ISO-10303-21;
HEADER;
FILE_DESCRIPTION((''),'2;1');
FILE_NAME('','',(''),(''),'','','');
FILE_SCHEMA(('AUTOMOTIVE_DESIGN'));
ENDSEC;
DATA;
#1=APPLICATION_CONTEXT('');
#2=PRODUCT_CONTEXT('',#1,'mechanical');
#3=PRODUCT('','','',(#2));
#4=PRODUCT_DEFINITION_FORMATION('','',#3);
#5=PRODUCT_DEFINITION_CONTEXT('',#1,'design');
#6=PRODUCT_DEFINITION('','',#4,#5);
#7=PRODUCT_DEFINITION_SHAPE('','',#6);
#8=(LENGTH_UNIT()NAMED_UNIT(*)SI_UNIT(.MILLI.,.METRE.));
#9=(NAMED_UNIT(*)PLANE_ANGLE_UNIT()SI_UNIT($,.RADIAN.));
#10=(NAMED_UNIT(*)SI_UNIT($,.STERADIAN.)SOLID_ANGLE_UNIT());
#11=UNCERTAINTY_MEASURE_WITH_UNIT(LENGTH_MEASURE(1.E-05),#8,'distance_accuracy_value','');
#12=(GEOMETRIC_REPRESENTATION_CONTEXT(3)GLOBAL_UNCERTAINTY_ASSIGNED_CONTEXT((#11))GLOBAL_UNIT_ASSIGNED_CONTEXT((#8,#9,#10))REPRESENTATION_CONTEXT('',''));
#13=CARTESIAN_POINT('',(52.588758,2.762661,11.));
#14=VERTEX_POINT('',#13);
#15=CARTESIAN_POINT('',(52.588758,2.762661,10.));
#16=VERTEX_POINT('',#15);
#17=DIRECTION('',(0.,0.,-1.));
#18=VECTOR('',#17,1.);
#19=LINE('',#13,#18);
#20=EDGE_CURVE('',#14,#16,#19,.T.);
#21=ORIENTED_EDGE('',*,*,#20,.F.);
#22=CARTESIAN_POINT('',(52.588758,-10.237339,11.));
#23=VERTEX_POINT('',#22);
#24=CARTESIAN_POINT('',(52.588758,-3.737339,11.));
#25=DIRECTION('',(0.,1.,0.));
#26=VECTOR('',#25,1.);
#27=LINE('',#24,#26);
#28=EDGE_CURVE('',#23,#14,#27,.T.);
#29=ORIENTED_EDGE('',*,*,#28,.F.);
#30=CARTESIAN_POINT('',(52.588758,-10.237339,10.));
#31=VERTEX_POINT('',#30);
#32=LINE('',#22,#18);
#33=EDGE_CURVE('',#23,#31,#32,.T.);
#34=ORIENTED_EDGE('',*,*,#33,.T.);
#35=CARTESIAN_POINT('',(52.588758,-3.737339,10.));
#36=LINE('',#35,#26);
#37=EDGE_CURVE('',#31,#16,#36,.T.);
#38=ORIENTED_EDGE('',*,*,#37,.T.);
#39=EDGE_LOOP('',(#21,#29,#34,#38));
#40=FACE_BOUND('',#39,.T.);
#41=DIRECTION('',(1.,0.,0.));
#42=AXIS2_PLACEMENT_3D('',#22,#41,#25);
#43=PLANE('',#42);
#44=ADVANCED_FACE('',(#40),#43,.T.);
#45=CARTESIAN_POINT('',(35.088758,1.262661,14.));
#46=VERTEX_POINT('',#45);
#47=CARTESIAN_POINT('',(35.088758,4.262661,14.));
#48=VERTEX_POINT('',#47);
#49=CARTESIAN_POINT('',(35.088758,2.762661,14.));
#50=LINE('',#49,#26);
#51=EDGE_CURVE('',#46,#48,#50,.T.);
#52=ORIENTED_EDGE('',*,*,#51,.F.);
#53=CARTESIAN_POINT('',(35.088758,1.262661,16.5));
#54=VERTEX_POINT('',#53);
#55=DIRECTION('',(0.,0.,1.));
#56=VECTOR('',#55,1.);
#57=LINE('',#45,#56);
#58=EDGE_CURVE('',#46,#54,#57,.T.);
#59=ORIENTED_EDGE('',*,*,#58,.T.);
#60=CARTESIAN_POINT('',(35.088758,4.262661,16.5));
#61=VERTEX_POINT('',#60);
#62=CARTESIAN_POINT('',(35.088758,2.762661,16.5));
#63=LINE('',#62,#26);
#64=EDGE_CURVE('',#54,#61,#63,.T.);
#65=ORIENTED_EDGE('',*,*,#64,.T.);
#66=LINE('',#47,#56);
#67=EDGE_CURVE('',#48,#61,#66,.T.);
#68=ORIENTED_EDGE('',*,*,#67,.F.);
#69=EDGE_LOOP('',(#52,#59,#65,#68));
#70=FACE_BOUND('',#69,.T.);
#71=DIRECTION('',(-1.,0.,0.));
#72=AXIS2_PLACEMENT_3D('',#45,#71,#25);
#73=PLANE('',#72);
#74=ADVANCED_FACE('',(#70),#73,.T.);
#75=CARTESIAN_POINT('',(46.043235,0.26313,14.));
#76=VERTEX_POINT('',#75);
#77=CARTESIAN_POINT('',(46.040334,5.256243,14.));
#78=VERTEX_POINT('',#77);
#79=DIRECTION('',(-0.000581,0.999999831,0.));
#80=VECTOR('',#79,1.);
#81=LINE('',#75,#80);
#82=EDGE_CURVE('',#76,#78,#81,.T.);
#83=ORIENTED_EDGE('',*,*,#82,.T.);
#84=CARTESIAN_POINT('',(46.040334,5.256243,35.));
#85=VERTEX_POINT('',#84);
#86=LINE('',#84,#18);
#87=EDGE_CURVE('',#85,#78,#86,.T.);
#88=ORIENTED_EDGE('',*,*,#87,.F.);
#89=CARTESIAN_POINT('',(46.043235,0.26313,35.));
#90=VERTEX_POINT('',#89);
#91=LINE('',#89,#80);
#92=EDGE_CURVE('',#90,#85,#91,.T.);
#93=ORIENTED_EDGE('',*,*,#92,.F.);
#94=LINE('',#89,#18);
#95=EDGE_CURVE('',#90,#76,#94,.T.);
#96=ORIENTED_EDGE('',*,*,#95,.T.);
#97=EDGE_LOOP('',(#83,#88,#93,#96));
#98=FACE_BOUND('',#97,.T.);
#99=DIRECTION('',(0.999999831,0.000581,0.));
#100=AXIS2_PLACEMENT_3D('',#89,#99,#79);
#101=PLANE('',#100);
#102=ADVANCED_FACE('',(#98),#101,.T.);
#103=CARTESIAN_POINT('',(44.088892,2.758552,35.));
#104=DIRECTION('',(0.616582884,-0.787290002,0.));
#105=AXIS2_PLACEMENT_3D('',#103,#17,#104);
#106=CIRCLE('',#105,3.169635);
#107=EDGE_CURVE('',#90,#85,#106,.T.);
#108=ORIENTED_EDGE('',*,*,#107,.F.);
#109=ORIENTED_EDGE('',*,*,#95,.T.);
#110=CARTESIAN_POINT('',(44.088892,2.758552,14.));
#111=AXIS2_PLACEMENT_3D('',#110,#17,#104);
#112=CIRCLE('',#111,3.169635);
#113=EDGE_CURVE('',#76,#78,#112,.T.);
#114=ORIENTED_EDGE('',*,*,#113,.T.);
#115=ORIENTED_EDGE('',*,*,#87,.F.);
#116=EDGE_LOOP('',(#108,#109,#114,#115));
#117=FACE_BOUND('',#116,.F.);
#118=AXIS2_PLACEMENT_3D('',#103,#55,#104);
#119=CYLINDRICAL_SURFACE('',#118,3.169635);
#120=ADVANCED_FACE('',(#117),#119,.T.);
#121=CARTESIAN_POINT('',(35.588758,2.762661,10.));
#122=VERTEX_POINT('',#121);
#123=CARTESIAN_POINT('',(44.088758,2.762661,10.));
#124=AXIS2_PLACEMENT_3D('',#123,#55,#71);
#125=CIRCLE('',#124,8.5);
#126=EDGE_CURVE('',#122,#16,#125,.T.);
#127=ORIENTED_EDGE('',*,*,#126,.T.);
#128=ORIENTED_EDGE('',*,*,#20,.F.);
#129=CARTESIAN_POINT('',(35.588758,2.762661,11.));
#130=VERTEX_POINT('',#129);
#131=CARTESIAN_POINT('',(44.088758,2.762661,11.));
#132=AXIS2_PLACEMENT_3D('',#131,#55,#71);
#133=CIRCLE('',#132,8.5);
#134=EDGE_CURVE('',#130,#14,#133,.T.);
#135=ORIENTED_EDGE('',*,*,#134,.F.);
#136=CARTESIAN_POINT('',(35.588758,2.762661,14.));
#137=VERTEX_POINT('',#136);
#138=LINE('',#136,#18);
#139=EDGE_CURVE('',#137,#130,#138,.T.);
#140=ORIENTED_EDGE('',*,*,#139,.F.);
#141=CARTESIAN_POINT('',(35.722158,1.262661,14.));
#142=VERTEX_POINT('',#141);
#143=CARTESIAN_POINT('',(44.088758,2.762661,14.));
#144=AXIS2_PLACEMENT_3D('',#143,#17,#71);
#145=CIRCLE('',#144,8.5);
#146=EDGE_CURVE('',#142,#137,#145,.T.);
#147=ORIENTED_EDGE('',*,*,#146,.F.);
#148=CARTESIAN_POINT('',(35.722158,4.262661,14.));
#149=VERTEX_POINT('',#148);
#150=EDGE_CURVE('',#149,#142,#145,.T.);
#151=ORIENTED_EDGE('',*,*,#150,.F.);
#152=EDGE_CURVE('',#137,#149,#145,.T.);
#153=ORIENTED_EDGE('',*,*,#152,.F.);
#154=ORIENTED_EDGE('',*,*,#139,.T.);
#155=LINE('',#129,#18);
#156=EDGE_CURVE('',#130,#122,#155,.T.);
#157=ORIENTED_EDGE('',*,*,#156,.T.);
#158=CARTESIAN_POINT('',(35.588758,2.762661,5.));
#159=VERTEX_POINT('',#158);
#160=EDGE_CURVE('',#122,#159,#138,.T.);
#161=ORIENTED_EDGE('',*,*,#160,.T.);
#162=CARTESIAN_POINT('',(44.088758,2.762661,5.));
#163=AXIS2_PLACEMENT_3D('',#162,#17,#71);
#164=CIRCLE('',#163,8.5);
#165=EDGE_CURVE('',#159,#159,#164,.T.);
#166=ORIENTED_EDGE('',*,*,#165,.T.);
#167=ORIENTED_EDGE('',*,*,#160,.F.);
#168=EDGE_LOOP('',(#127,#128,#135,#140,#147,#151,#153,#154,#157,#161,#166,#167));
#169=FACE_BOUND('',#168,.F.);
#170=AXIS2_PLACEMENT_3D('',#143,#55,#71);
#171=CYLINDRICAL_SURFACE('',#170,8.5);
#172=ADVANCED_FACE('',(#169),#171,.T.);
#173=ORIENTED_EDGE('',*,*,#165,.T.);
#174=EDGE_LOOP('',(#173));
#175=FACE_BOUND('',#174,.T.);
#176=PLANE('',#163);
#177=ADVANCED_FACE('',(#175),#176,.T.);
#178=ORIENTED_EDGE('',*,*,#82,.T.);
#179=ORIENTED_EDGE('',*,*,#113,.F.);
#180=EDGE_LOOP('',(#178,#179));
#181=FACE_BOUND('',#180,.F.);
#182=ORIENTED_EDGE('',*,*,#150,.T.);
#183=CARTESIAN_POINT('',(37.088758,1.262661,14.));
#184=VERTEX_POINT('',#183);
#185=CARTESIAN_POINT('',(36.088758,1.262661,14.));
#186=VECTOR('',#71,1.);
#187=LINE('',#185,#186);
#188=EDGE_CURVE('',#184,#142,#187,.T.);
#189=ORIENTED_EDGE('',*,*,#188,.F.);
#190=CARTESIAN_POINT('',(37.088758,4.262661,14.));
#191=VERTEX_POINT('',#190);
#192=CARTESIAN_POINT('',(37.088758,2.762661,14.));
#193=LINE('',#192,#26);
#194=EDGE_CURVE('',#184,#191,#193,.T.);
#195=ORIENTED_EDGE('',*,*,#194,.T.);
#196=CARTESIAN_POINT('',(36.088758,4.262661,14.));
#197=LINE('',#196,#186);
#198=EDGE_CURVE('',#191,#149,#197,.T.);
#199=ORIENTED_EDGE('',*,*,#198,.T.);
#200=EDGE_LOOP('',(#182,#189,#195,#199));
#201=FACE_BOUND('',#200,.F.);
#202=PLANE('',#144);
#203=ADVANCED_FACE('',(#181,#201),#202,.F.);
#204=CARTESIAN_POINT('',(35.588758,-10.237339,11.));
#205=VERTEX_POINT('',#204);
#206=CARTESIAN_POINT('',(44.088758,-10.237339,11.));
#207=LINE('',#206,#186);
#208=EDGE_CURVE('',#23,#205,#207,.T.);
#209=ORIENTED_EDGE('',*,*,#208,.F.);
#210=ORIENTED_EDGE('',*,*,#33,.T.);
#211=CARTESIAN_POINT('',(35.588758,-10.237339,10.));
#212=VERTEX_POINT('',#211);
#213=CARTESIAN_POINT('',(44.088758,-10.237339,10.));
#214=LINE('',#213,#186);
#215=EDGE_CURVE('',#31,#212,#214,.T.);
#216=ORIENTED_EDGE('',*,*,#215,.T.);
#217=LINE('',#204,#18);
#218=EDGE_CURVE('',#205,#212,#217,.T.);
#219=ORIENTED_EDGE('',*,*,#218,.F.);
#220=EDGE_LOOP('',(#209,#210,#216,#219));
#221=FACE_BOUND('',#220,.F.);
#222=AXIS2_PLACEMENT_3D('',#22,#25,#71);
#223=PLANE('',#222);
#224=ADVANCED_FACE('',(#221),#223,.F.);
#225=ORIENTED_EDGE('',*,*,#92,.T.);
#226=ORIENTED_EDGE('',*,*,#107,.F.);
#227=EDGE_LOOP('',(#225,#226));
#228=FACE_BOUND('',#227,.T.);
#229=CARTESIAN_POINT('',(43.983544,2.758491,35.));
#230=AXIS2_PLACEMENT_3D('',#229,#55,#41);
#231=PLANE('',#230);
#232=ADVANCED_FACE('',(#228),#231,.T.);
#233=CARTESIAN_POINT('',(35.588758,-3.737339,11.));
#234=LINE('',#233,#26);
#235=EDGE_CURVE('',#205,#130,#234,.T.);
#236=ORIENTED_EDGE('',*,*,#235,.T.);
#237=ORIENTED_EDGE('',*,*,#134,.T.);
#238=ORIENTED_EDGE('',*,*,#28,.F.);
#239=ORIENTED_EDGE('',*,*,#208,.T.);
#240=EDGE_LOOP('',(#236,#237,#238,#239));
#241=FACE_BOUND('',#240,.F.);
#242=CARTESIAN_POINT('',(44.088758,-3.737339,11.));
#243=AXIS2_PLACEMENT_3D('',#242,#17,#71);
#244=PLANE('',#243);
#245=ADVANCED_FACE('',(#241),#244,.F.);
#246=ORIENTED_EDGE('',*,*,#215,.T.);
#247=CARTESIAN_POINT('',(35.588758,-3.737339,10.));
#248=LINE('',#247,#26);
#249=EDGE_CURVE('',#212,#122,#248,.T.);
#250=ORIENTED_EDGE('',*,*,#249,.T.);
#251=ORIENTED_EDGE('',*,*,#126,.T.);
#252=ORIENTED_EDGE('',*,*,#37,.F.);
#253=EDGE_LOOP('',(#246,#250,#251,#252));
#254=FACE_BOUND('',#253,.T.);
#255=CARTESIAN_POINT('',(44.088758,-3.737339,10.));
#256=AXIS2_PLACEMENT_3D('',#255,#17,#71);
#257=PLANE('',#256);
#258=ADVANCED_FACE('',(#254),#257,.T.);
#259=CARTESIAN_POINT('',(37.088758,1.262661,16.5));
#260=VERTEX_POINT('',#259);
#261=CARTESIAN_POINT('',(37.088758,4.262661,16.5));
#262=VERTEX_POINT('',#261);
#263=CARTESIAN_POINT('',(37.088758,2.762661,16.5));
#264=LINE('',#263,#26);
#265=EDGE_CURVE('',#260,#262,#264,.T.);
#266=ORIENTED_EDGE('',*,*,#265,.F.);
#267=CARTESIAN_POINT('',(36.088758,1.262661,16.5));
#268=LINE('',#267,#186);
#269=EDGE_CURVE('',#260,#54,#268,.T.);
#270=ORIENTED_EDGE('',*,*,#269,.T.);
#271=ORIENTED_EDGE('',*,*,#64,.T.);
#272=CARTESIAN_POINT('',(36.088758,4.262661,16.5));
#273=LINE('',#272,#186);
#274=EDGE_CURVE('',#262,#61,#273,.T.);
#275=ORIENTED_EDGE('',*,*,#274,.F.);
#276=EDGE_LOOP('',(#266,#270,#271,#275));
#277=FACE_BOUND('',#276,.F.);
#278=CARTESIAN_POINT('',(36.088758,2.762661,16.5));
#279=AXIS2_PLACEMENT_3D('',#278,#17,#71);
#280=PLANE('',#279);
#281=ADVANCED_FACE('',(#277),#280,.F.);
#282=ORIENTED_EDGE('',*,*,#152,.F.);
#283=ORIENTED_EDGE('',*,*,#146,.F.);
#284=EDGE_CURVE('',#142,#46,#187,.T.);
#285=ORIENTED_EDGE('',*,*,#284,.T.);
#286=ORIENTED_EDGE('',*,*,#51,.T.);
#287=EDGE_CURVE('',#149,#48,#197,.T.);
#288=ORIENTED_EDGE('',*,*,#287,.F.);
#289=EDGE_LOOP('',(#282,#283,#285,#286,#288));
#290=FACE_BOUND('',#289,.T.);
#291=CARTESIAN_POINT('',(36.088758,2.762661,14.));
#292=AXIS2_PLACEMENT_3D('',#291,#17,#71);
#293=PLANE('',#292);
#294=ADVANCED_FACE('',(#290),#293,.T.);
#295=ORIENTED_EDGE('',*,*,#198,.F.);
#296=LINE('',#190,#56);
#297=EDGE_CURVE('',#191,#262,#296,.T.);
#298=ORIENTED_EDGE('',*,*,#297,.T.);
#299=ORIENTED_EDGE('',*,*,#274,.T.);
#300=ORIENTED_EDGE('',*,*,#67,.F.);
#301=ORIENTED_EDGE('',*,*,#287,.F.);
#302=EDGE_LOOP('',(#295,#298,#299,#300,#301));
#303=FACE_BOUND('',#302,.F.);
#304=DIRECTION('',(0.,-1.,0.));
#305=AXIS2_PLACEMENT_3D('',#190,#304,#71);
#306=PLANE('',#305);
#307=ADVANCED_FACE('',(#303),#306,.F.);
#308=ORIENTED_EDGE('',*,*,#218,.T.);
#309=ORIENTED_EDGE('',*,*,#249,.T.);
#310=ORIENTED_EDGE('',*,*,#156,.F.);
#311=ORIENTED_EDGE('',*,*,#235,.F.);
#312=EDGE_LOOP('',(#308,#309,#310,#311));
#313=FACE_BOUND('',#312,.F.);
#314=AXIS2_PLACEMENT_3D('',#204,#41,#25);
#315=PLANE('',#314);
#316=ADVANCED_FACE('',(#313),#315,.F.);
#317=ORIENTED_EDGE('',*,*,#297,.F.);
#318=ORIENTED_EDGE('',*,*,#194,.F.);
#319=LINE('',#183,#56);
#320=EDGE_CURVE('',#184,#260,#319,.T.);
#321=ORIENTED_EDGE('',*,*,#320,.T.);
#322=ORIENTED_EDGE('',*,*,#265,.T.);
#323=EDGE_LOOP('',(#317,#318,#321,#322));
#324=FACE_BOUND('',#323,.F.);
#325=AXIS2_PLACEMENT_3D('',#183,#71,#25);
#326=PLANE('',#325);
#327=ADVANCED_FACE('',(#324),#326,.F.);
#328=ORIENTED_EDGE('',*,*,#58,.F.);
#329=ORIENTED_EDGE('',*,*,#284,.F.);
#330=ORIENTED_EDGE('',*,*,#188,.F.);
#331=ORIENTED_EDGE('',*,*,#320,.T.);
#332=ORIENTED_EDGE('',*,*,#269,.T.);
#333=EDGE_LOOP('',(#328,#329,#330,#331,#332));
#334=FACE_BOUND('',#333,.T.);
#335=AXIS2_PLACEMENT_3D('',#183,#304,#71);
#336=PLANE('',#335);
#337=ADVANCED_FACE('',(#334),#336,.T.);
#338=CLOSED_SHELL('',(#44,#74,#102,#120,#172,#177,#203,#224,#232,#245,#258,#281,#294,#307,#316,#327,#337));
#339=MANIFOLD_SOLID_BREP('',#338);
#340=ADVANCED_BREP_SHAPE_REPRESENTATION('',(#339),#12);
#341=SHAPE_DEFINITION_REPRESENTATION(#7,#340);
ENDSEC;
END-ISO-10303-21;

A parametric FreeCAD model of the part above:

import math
import FreeCAD as App
import Part
import Sketcher


def add_polygon(sketch, points):
    """Adds a closed chain of lines whose ends are joined by coincident constraints."""
    first, n = sketch.GeometryCount, len(points)
    for a, b in zip(points, points[1:] + points[:1]):
        sketch.addGeometry(Part.LineSegment(App.Vector(*a, 0), App.Vector(*b, 0)), False)
    for i in range(n):
        sketch.addConstraint(Sketcher.Constraint("Coincident", first + i, 2, first + (i + 1) % n, 1))

doc = App.newDocument("Part")
body = doc.addObject("PartDesign::Body", "Body")

# Sketch on XY plane
sketch1 = doc.addObject("Sketcher::SketchObject", "Sketch")
body.addObject(sketch1)
sketch1.AttachmentSupport = (doc.XY_Plane, [""])
sketch1.MapMode = "FlatFace"
sketch1.addGeometry(Part.Circle(App.Vector(44, 3, 0), App.Vector(0, 0, 1), 8), False)
sketch1.addConstraint([
    Sketcher.Constraint("Diameter", 0, 17.0),
    Sketcher.Constraint("DistanceY", -1, 1, 0, 3, 2.762661),
    Sketcher.Constraint("DistanceX", -1, 1, 0, 3, 43.911242),
])
pad1 = doc.addObject("PartDesign::Pad", "Pad")
body.addObject(pad1)
pad1.Profile = sketch1
pad1.Length = 9

# Sketch on XY plane
sketch2 = doc.addObject("Sketcher::SketchObject", "Sketch001")
body.addObject(sketch2)
sketch2.AttachmentSupport = (doc.XY_Plane, [""])
sketch2.MapMode = "FlatFace"
sketch2.AttachmentOffset = App.Placement(App.Vector(0, 0, 3), App.Rotation())
add_polygon(sketch2, [(35, 3), (35, -10), (52, -10), (52, 3)])  # lines 0-3
sketch2.addConstraint([
    Sketcher.Constraint("Vertical", 0),
    Sketcher.Constraint("Horizontal", 1),
    Sketcher.Constraint("Vertical", 2),
    Sketcher.Constraint("Horizontal", 3),
    Sketcher.Constraint("DistanceX", 1, 1, 1, 2, 17.0),
    Sketcher.Constraint("DistanceY", 0, 2, 0, 1, 13.0),
    Sketcher.Constraint("DistanceY", 0, 2, -1, 1, 10.237339),
    Sketcher.Constraint("DistanceX", -1, 1, 0, 2, 35.411242),
])
pad2 = doc.addObject("PartDesign::Pad", "Pad001")
body.addObject(pad2)
pad2.Profile = sketch2
pad2.Length = 1

# Sketch on XY plane
sketch3 = doc.addObject("Sketcher::SketchObject", "Sketch002")
body.addObject(sketch3)
sketch3.AttachmentSupport = (doc.XY_Plane, [""])
sketch3.MapMode = "FlatFace"
add_polygon(sketch3, [(50.9, 4.3), (50.9, 1.3), (52.9, 1.3), (52.9, 4.3)])  # lines 0-3
sketch3.addConstraint([
    Sketcher.Constraint("Vertical", 0),
    Sketcher.Constraint("Horizontal", 1),
    Sketcher.Constraint("Vertical", 2),
    Sketcher.Constraint("Horizontal", 3),
    Sketcher.Constraint("DistanceX", 1, 1, 1, 2, 2.0),
    Sketcher.Constraint("DistanceY", 0, 2, 0, 1, 3.0),
    Sketcher.Constraint("DistanceY", -1, 1, 0, 2, 1.262661),
    Sketcher.Constraint("DistanceX", -1, 1, 0, 2, 50.911242),
])
pad3 = doc.addObject("PartDesign::Pad", "Pad002")
body.addObject(pad3)
pad3.Profile = sketch3
pad3.Length = 2.5
pad3.Reversed = True
body2 = doc.addObject("PartDesign::Body", "Body001")

# Sketch on XY plane
sketch4 = doc.addObject("Sketcher::SketchObject", "Sketch003")
body2.addObject(sketch4)
sketch4.AttachmentSupport = (doc.getObject("XY_Plane001"), [""])
sketch4.MapMode = "FlatFace"
sketch4.addGeometry([
    Part.LineSegment(App.Vector(42, 5.3, 0), App.Vector(42, 0.3, 0)),
    Part.ArcOfCircle(Part.Circle(App.Vector(43.9, 2.8, 0), App.Vector(0, 0, 1), 3.2), math.radians(-128), math.radians(128)),
], False)
sketch4.addConstraint([
    Sketcher.Constraint("Coincident", 0, 1, 1, 2),
    Sketcher.Constraint("Coincident", 1, 1, 0, 2),
    Sketcher.Constraint("Radius", 1, 3.169635),
    Sketcher.Constraint("DistanceX", 1, 1, 0, 1, 0.002901),
    Sketcher.Constraint("DistanceY", -1, 1, 1, 3, 2.758552),
    Sketcher.Constraint("DistanceY", -1, 1, 1, 1, 0.26313),
    Sketcher.Constraint("DistanceX", -1, 1, 1, 3, 43.911108),
])
pad4 = doc.addObject("PartDesign::Pad", "Pad003")
body2.addObject(pad4)
pad4.Profile = sketch4
pad4.Length = 21
body3 = doc.addObject("PartDesign::Body", "Body002")
doc.recompute()

body2.Placement = App.Placement(App.Vector(0, 0, -21), App.Rotation(App.Vector(0, 0, 1), 0))
boolean = doc.addObject("PartDesign::Boolean", "Boolean")
body3.addObject(boolean)
boolean.Type = "Fuse"
boolean.addObjects([body2])
doc.recompute()

boolean2 = doc.addObject("PartDesign::Boolean", "Boolean001")
body3.addObject(boolean2)
boolean2.Type = "Fuse"
boolean2.addObjects([body])
body4 = doc.addObject("PartDesign::Body", "Body003")
doc.recompute()

body3.Placement = App.Placement(App.Vector(88, 0, 14), App.Rotation(App.Vector(0, 1, 0), 180))
boolean3 = doc.addObject("PartDesign::Boolean", "Boolean002")
body4.addObject(boolean3)
boolean3.Type = "Fuse"
boolean3.addObjects([body3])

doc.recompute()
